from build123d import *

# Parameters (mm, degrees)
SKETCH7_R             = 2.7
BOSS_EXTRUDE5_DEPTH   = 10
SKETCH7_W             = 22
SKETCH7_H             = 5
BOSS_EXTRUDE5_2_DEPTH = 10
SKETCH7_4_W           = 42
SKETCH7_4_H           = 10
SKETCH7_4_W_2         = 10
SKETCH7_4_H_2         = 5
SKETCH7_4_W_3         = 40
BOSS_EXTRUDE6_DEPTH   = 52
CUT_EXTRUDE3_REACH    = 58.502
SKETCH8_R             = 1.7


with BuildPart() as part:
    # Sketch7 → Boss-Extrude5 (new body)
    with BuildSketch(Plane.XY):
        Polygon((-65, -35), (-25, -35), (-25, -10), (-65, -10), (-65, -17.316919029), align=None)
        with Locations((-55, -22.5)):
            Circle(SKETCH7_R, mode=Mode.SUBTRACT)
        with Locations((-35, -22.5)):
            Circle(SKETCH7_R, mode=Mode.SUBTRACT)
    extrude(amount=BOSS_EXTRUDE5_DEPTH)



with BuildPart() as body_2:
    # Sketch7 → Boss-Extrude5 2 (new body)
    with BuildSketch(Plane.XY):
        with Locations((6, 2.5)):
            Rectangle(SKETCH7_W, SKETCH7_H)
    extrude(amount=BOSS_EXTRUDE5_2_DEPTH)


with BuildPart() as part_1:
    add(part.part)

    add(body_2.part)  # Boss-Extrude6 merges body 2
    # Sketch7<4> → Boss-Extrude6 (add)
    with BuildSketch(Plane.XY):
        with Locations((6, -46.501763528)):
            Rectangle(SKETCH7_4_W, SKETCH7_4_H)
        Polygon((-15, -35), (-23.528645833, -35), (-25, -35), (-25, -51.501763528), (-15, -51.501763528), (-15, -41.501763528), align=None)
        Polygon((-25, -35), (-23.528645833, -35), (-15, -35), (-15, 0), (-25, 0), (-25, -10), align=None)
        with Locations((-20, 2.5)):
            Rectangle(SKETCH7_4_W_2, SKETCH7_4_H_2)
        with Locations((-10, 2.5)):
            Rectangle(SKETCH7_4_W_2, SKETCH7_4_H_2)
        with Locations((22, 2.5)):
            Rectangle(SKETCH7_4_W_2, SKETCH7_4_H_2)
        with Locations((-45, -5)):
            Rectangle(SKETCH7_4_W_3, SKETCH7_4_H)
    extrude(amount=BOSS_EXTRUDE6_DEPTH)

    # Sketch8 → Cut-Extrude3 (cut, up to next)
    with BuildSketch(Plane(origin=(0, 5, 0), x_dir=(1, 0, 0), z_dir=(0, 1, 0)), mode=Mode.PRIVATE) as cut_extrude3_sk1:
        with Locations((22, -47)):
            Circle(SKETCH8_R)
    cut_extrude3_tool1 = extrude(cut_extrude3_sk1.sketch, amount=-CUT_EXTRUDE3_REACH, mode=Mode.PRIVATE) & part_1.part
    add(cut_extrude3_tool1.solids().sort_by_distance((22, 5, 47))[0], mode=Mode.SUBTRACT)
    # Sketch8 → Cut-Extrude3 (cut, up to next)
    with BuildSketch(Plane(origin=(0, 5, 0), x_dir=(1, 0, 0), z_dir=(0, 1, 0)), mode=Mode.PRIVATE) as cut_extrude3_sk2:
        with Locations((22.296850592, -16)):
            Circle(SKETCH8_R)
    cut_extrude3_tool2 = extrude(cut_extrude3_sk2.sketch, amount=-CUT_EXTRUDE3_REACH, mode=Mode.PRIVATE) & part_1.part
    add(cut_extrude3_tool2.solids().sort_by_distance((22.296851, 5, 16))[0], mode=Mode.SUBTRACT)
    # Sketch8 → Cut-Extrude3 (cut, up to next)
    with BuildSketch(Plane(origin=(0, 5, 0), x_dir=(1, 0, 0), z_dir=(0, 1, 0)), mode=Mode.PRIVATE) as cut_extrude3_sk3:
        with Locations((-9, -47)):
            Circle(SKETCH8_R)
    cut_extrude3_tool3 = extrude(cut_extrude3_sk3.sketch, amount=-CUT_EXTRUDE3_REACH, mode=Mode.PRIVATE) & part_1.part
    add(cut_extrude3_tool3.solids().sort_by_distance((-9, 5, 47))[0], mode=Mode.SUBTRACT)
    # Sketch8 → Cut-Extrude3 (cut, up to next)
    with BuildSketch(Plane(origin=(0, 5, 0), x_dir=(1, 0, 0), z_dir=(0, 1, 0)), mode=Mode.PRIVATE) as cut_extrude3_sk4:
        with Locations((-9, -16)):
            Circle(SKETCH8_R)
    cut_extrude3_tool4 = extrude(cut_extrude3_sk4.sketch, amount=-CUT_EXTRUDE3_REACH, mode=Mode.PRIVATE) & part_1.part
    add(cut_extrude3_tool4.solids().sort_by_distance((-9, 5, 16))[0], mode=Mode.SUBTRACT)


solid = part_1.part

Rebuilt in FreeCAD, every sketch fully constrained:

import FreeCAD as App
import Part
import Sketcher


def add_polygon(sketch, points):
    """Adds a closed chain of lines whose ends are joined by coincident constraints."""
    first, n = sketch.GeometryCount, len(points)
    for a, b in zip(points, points[1:] + points[:1]):
        sketch.addGeometry(Part.LineSegment(App.Vector(*a, 0), App.Vector(*b, 0)), False)
    for i in range(n):
        sketch.addConstraint(Sketcher.Constraint("Coincident", first + i, 2, first + (i + 1) % n, 1))

doc = App.newDocument("Part")
body = doc.addObject("PartDesign::Body", "Body")

sketch1 = body.newObject("Sketcher::SketchObject", "Sketch")
sketch1.AttachmentSupport = (doc.getObject("XY_Plane"), [""])
sketch1.MapMode = "FlatFace"
add_polygon(sketch1, [(-65, -35), (-25, -35), (-25, -10), (-65, -10)])
sketch1.addGeometry(Part.Circle(App.Vector(-55, -22.5, 0), App.Vector(0, 0, 1), 2.7), False)
sketch1.addGeometry(Part.Circle(App.Vector(-35, -22.5, 0), App.Vector(0, 0, 1), 2.7), False)
sketch1.addConstraint(Sketcher.Constraint("Horizontal", 0))
sketch1.addConstraint(Sketcher.Constraint("Vertical", 1))
sketch1.addConstraint(Sketcher.Constraint("Horizontal", 2))
sketch1.addConstraint(Sketcher.Constraint("Vertical", 3))
sketch1.addConstraint(Sketcher.Constraint("Equal", 4, 5))
sketch1.addConstraint(Sketcher.Constraint("Horizontal", 4, 3, 5, 3))
sketch1.addConstraint(Sketcher.Constraint("Diameter", 4, 5.4))
sketch1.addConstraint(Sketcher.Constraint("DistanceX", 0, 1, 0, 2, 40.0))
sketch1.addConstraint(Sketcher.Constraint("DistanceY", 1, 1, 1, 2, 25.0))
sketch1.addConstraint(Sketcher.Constraint("DistanceX", 4, 3, -1, 1, 55.0))
sketch1.addConstraint(Sketcher.Constraint("DistanceX", 5, 3, -1, 1, 35.0))
sketch1.addConstraint(Sketcher.Constraint("DistanceX", 0, 2, -1, 1, 25.0))
sketch1.addConstraint(Sketcher.Constraint("DistanceY", 0, 2, -1, 1, 35.0))
sketch1.addConstraint(Sketcher.Constraint("DistanceY", 4, 3, -1, 1, 22.5))
pad1 = body.newObject("PartDesign::Pad", "Pad")
pad1.Profile = sketch1
pad1.Length = 10
body2 = doc.addObject("PartDesign::Body", "Body001")

sketch2 = body2.newObject("Sketcher::SketchObject", "Sketch001")
sketch2.AttachmentSupport = (doc.getObject("XY_Plane001"), [""])
sketch2.MapMode = "FlatFace"
add_polygon(sketch2, [(-5, 5), (-5, 0), (17, 0), (17, 5)])
sketch2.addConstraint(Sketcher.Constraint("Vertical", 0))
sketch2.addConstraint(Sketcher.Constraint("Horizontal", 1))
sketch2.addConstraint(Sketcher.Constraint("Vertical", 2))
sketch2.addConstraint(Sketcher.Constraint("Horizontal", 3))
sketch2.addConstraint(Sketcher.Constraint("PointOnObject", 0, 2, -1))
sketch2.addConstraint(Sketcher.Constraint("DistanceX", 1, 1, 1, 2, 22.0))
sketch2.addConstraint(Sketcher.Constraint("DistanceY", 0, 2, 0, 1, 5.0))
sketch2.addConstraint(Sketcher.Constraint("DistanceX", 0, 2, -1, 1, 5.0))
pad2 = body2.newObject("PartDesign::Pad", "Pad001")
pad2.Profile = sketch2
pad2.Length = 10
body.AllowCompound = True
doc.recompute()

boolean = body.newObject("PartDesign::Boolean", "Boolean")
boolean.Type = "Fuse"
boolean.addObjects([body2])

sketch3 = body.newObject("Sketcher::SketchObject", "Sketch002")
sketch3.AttachmentSupport = (doc.getObject("XY_Plane"), [""])
sketch3.MapMode = "FlatFace"
add_polygon(sketch3, [(27, -52), (27, -42), (-15, -42), (-15, 0), (-5, 0), (-5, 5), (-25, 5), (-25, 0), (-65, 0), (-65, -10), (-25, -10), (-25, -52)])
add_polygon(sketch3, [(17, 5), (17, 0), (27, 0), (27, 5)])
sketch3.addConstraint(Sketcher.Constraint("Vertical", 0))
sketch3.addConstraint(Sketcher.Constraint("Horizontal", 1))
sketch3.addConstraint(Sketcher.Constraint("Vertical", 2))
sketch3.addConstraint(Sketcher.Constraint("Horizontal", 3))
sketch3.addConstraint(Sketcher.Constraint("Vertical", 4))
sketch3.addConstraint(Sketcher.Constraint("Horizontal", 5))
sketch3.addConstraint(Sketcher.Constraint("Vertical", 6))
sketch3.addConstraint(Sketcher.Constraint("Horizontal", 7))
sketch3.addConstraint(Sketcher.Constraint("Vertical", 8))
sketch3.addConstraint(Sketcher.Constraint("Horizontal", 9))
sketch3.addConstraint(Sketcher.Constraint("Vertical", 10))
sketch3.addConstraint(Sketcher.Constraint("Horizontal", 11))
sketch3.addConstraint(Sketcher.Constraint("Vertical", 12))
sketch3.addConstraint(Sketcher.Constraint("Horizontal", 13))
sketch3.addConstraint(Sketcher.Constraint("Vertical", 14))
sketch3.addConstraint(Sketcher.Constraint("Horizontal", 15))
sketch3.addConstraint(Sketcher.Constraint("PointOnObject", 2, 2, -1))
sketch3.addConstraint(Sketcher.Constraint("PointOnObject", 6, 2, -1))
sketch3.addConstraint(Sketcher.Constraint("PointOnObject", 12, 2, -1))
sketch3.addConstraint(Sketcher.Constraint("Horizontal", 5, 2, 14, 2))
sketch3.addConstraint(Sketcher.Constraint("Vertical", 6, 2, 9, 2))
sketch3.addConstraint(Sketcher.Constraint("Vertical", 11, 2, 13, 2))
sketch3.addConstraint(Sketcher.Constraint("Equal", 3, 13))
sketch3.addConstraint(Sketcher.Constraint("Equal", 15, 0))
sketch3.addConstraint(Sketcher.Constraint("Equal", 0, 8))
sketch3.addConstraint(Sketcher.Constraint("DistanceX", 1, 2, 1, 1, 42.0))
sketch3.addConstraint(Sketcher.Constraint("DistanceX", 3, 1, 3, 2, 10.0))
sketch3.addConstraint(Sketcher.Constraint("DistanceX", 5, 2, 5, 1, 20.0))
sketch3.addConstraint(Sketcher.Constraint("DistanceX", 7, 2, 7, 1, 40.0))
sketch3.addConstraint(Sketcher.Constraint("DistanceY", 4, 1, 4, 2, 5.0))
sketch3.addConstraint(Sketcher.Constraint("DistanceX", -1, 1, 0, 2, 27.0))
sketch3.addConstraint(Sketcher.Constraint("DistanceY", 2, 1, 2, 2, 41.501764))
pad3 = body.newObject("PartDesign::Pad", "Pad002")
pad3.Profile = sketch3
pad3.Length = 52

sketch4 = body.newObject("Sketcher::SketchObject", "Sketch003")
sketch4.AttachmentSupport = (doc.getObject("XZ_Plane"), [""])
sketch4.MapMode = "FlatFace"
sketch4.AttachmentOffset = App.Placement(App.Vector(0, 0, -5), App.Rotation())
sketch4.addGeometry(Part.Circle(App.Vector(22, 47, 0), App.Vector(0, 0, 1), 1.7), False)
sketch4.addConstraint(Sketcher.Constraint("Diameter", 0, 3.4))
sketch4.addConstraint(Sketcher.Constraint("DistanceX", -1, 1, 0, 3, 22.0))
sketch4.addConstraint(Sketcher.Constraint("DistanceY", -1, 1, 0, 3, 47.0))
pocket1 = body.newObject("PartDesign::Pocket", "Pocket")
pocket1.Profile = sketch4
pocket1.Type = "UpToFirst"
pocket1.Reversed = True

sketch5 = body.newObject("Sketcher::SketchObject", "Sketch004")
sketch5.AttachmentSupport = (doc.getObject("XZ_Plane"), [""])
sketch5.MapMode = "FlatFace"
sketch5.AttachmentOffset = App.Placement(App.Vector(0, 0, -5), App.Rotation())
sketch5.addGeometry(Part.Circle(App.Vector(22.3, 16, 0), App.Vector(0, 0, 1), 1.7), False)
sketch5.addConstraint(Sketcher.Constraint("Diameter", 0, 3.4))
sketch5.addConstraint(Sketcher.Constraint("DistanceY", -1, 1, 0, 3, 16.0))
sketch5.addConstraint(Sketcher.Constraint("DistanceX", -1, 1, 0, 3, 22.296851))
pocket2 = body.newObject("PartDesign::Pocket", "Pocket001")
pocket2.Profile = sketch5
pocket2.Type = "UpToFirst"
pocket2.Reversed = True

sketch6 = body.newObject("Sketcher::SketchObject", "Sketch005")
sketch6.AttachmentSupport = (doc.getObject("XZ_Plane"), [""])
sketch6.MapMode = "FlatFace"
sketch6.AttachmentOffset = App.Placement(App.Vector(0, 0, -5), App.Rotation())
sketch6.addGeometry(Part.Circle(App.Vector(-9, 47, 0), App.Vector(0, 0, 1), 1.7), False)
sketch6.addConstraint(Sketcher.Constraint("Diameter", 0, 3.4))
sketch6.addConstraint(Sketcher.Constraint("DistanceX", 0, 3, -1, 1, 9.0))
sketch6.addConstraint(Sketcher.Constraint("DistanceY", -1, 1, 0, 3, 47.0))
pocket3 = body.newObject("PartDesign::Pocket", "Pocket002")
pocket3.Profile = sketch6
pocket3.Type = "UpToFirst"
pocket3.Reversed = True

sketch7 = body.newObject("Sketcher::SketchObject", "Sketch006")
sketch7.AttachmentSupport = (doc.getObject("XZ_Plane"), [""])
sketch7.MapMode = "FlatFace"
sketch7.AttachmentOffset = App.Placement(App.Vector(0, 0, -5), App.Rotation())
sketch7.addGeometry(Part.Circle(App.Vector(-9, 16, 0), App.Vector(0, 0, 1), 1.7), False)
sketch7.addConstraint(Sketcher.Constraint("Diameter", 0, 3.4))
sketch7.addConstraint(Sketcher.Constraint("DistanceX", 0, 3, -1, 1, 9.0))
sketch7.addConstraint(Sketcher.Constraint("DistanceY", -1, 1, 0, 3, 16.0))
pocket4 = body.newObject("PartDesign::Pocket", "Pocket003")
pocket4.Profile = sketch7
pocket4.Type = "UpToFirst"
pocket4.Reversed = True

doc.recompute()
